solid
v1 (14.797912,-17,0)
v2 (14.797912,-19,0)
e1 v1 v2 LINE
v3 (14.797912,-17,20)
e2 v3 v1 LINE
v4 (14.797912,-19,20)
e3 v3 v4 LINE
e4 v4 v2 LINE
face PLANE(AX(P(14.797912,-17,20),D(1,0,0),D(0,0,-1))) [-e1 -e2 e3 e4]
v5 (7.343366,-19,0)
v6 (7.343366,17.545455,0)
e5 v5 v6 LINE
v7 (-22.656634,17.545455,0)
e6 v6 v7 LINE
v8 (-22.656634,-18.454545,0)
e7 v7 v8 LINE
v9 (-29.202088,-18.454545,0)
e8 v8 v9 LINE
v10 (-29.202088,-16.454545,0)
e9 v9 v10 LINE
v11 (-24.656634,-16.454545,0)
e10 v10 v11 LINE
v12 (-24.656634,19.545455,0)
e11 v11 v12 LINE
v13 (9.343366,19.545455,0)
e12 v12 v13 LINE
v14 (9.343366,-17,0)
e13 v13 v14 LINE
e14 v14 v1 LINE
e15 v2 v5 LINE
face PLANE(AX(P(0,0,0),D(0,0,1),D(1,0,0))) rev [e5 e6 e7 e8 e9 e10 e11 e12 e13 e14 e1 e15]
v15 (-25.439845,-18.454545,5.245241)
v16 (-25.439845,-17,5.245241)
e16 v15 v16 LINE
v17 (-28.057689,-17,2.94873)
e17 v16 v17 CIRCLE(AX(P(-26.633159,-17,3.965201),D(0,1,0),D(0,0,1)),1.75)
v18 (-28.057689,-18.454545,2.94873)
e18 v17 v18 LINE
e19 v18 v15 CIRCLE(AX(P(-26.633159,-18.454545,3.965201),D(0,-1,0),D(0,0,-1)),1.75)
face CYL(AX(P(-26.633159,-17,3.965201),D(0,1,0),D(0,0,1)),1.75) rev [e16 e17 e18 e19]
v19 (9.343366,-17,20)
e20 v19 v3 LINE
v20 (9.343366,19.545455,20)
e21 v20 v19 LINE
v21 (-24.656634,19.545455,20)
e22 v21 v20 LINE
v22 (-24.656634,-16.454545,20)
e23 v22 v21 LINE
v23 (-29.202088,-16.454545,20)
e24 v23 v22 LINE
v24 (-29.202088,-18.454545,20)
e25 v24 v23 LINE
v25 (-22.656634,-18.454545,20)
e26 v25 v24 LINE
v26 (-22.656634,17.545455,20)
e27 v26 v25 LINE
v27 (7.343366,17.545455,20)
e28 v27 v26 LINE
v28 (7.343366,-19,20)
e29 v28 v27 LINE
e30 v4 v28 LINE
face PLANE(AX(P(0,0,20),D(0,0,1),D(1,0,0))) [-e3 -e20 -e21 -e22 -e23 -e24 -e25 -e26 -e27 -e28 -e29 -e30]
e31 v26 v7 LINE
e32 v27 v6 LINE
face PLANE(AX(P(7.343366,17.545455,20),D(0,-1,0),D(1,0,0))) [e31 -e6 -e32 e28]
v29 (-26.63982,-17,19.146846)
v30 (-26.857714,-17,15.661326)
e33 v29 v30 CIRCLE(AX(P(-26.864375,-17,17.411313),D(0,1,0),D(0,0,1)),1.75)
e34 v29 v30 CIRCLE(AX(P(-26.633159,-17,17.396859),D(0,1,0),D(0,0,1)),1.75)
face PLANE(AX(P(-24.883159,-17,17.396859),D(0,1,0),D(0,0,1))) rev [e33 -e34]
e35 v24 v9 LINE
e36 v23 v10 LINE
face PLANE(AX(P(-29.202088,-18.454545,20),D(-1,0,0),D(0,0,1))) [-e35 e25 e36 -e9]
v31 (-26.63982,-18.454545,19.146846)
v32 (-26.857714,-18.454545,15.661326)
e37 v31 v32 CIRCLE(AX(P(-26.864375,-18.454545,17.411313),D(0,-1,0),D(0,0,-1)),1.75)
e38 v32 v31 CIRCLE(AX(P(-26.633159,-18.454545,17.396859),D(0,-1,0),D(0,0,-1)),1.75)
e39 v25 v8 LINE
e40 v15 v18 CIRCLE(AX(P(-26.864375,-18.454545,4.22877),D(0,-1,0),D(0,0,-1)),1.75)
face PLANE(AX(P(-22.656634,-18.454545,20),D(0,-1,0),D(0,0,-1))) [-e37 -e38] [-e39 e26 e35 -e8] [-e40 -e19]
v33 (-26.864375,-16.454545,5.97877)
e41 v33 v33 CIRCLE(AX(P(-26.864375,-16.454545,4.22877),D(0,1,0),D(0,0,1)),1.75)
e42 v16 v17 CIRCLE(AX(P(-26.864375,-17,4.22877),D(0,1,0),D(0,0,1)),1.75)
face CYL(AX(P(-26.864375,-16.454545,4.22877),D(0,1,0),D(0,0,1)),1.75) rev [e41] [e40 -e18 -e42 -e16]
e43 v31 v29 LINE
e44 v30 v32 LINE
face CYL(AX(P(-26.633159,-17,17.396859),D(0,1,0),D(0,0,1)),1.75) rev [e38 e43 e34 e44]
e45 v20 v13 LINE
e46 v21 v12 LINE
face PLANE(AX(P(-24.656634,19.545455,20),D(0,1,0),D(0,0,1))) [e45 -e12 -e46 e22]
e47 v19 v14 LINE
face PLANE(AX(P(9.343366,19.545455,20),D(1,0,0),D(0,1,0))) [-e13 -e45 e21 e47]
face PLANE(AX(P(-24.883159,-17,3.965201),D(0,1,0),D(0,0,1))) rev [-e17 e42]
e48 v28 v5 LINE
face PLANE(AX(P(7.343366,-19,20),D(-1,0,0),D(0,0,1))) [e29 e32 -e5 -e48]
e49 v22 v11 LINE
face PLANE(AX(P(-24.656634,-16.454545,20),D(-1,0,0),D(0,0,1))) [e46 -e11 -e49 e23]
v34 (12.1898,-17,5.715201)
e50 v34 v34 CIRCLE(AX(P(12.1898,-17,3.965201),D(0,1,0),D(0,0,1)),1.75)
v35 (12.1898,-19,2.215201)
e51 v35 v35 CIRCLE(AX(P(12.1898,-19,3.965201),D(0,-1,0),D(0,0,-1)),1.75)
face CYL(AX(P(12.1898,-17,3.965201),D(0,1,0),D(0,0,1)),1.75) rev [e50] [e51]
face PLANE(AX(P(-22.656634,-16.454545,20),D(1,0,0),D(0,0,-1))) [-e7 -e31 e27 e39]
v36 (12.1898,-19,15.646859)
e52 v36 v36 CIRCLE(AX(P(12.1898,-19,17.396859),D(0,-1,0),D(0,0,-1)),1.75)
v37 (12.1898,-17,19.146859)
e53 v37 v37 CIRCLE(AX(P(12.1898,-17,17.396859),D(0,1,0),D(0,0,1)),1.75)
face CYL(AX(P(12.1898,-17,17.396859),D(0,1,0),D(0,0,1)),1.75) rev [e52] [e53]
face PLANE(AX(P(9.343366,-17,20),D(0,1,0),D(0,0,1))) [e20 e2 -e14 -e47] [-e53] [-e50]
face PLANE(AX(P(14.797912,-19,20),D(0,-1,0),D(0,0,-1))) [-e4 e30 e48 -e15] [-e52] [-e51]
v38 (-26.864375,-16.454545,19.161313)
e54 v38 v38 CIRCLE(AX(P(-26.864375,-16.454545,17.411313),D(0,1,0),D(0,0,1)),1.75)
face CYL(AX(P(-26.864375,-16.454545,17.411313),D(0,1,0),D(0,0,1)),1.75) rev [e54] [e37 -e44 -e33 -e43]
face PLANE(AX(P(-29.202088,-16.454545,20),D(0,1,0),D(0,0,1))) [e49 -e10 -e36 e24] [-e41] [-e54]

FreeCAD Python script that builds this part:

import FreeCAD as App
import Part
import Sketcher

V = App.Vector
Q = App.Units.Quantity


def add_polygon(sketch, points):
    """Adds a closed chain of lines whose ends are joined by coincident constraints."""
    first, n = sketch.GeometryCount, len(points)
    for a, b in zip(points, points[1:] + points[:1]):
        sketch.addGeometry(Part.LineSegment(App.Vector(*a, 0), App.Vector(*b, 0)), False)
    for i in range(n):
        sketch.addConstraint(Sketcher.Constraint("Coincident", first + i, 2, first + (i + 1) % n, 1))

doc = App.newDocument("Part")
body = doc.addObject("PartDesign::Body", "Body")

# Sketch on XY plane
sketch1 = body.newObject("Sketcher::SketchObject", "Sketch")
sketch1.AttachmentSupport = (doc.getObject("XY_Plane"), [""])
sketch1.MapMode = "FlatFace"
add_polygon(sketch1, [(-29.2, -16.5), (-29.2, -18.5), (-22.7, -18.5), (-22.7, 17.5), (7.3, 17.5), (7.3, -19), (14.8, -19), (14.8, -17), (9.3, -17), (9.3, 19.5), (-24.7, 19.5), (-24.7, -16.5)])  # lines 0-11
sketch1.addConstraint(Sketcher.Constraint("Vertical", 0))
sketch1.addConstraint(Sketcher.Constraint("Horizontal", 1))
sketch1.addConstraint(Sketcher.Constraint("Vertical", 2))
sketch1.addConstraint(Sketcher.Constraint("Horizontal", 3))
sketch1.addConstraint(Sketcher.Constraint("Vertical", 4))
sketch1.addConstraint(Sketcher.Constraint("Horizontal", 5))
sketch1.addConstraint(Sketcher.Constraint("Vertical", 6))
sketch1.addConstraint(Sketcher.Constraint("Horizontal", 7))
sketch1.addConstraint(Sketcher.Constraint("Vertical", 8))
sketch1.addConstraint(Sketcher.Constraint("Horizontal", 9))
sketch1.addConstraint(Sketcher.Constraint("Vertical", 10))
sketch1.addConstraint(Sketcher.Constraint("Horizontal", 11))
sketch1.addConstraint(Sketcher.Constraint("Equal", 0, 6))
sketch1.addConstraint(Sketcher.Constraint("Equal", 4, 8))
sketch1.addConstraint(Sketcher.Constraint("DistanceX", 3, 1, 3, 2, 30.0))
sketch1.addConstraint(Sketcher.Constraint("DistanceX", 9, 2, 9, 1, 34.0))
sketch1.addConstraint(Sketcher.Constraint("DistanceY", 0, 2, 0, 1, 2.0))
sketch1.addConstraint(Sketcher.Constraint("DistanceY", 2, 1, 2, 2, 36.0))
sketch1.addConstraint(Sketcher.Constraint("DistanceY", 4, 2, -1, 1, 19.0))
sketch1.addConstraint(Sketcher.Constraint("DistanceX", 0, 2, 5, 2, 44.0))
sketch1.addConstraint(Sketcher.Constraint("DistanceX", 4, 2, 7, 2, 2.0))
sketch1.addConstraint(Sketcher.Constraint("DistanceX", 1, 1, 1, 2, 6.545455))
sketch1.addConstraint(Sketcher.Constraint("DistanceY", 4, 2, 4, 1, 36.545455))
sketch1.addConstraint(Sketcher.Constraint("DistanceX", 0, 2, -1, 1, 29.202088))
pad1 = body.newObject("PartDesign::Pad", "Pad")
pad1.Profile = sketch1
pad1.Length = 20

# Sketch on YZ plane
sketch2 = body.newObject("Sketcher::SketchObject", "Sketch001")
sketch2.AttachmentSupport = (doc.getObject("YZ_Plane"), [""])
sketch2.MapMode = "FlatFace"
sketch2.AttachmentOffset = App.Placement(V(0, 0, 12.1898), App.Rotation())
add_polygon(sketch2, [(-28.1, 4), (-17, 4), (-17, 5.7), (-27, 5.7)])  # lines 0-3
sketch2.addGeometry(Part.LineSegment(V(-17, 4, 0), V(-28.1, 4, 0)), True)  # axis
sketch2.addConstraint(Sketcher.Constraint("Horizontal", 0))
sketch2.addConstraint(Sketcher.Constraint("Vertical", 1))
sketch2.addConstraint(Sketcher.Constraint("Horizontal", 2))
sketch2.addConstraint(Sketcher.Constraint("Horizontal", 4))
sketch2.addConstraint(Sketcher.Constraint("Coincident", 4, 1, 0, 2))
sketch2.addConstraint(Sketcher.Constraint("Equal", 0, 4))
sketch2.addConstraint(Sketcher.Constraint("DistanceX", 2, 2, 2, 1, 10.0))
sketch2.addConstraint(Sketcher.Constraint("Angle", 3, Q("-121 deg")))
sketch2.addConstraint(Sketcher.Constraint("DistanceX", 0, 2, -1, 1, 17.0))
sketch2.addConstraint(Sketcher.Constraint("DistanceY", 1, 1, 1, 2, 1.75))
sketch2.addConstraint(Sketcher.Constraint("DistanceY", -1, 1, 0, 2, 3.965201))
groove = body.newObject("PartDesign::Groove", "Groove")
groove.Profile = sketch2
groove.ReferenceAxis = (sketch2, ["Axis0"])
groove.Angle = 360
doc.recompute()

linearpattern = body.newObject("PartDesign::LinearPattern", "LinearPattern")
linearpattern.Originals = [groove]
linearpattern.Direction = (doc.getObject("Z_Axis"), [""])
linearpattern.Mode = "offset"
linearpattern.Offset = 13.431658
linearpattern.Occurrences = 2
body.Tip = linearpattern
doc.recompute()

linearpattern2 = body.newObject("PartDesign::LinearPattern", "LinearPattern001")
linearpattern2.Originals = [groove]
linearpattern2.Direction = (doc.getObject("X_Axis"), [""])
linearpattern2.Mode = "offset"
linearpattern2.Offset = 38.822958
linearpattern2.Occurrences = 2
linearpattern2.Reversed = True
body.Tip = linearpattern2
doc.recompute()

datumline = body.newObject("PartDesign::Line", "DatumLine")
datumline.Placement = App.Placement(V(0, 0, 0), App.Rotation(V(0, 0, 1), V(-0.945039171, 0, 0.326957131)))
linearpattern3 = body.newObject("PartDesign::LinearPattern", "LinearPattern002")
linearpattern3.Originals = [groove]
linearpattern3.Direction = (datumline, [""])
linearpattern3.Mode = "offset"
linearpattern3.Offset = 41.080793
linearpattern3.Occurrences = 2
body.Tip = linearpattern3

# Sketch on XZ plane
sketch3 = body.newObject("Sketcher::SketchObject", "Sketch002")
sketch3.AttachmentSupport = (doc.getObject("XZ_Plane"), [""])
sketch3.MapMode = "FlatFace"
sketch3.AttachmentOffset = App.Placement(V(0, 0, 16.454545), App.Rotation())
sketch3.addGeometry(Part.Circle(V(-26.9, 17.4, 0), V(0, 0, 1), 1.8), False)
sketch3.addGeometry(Part.Circle(V(-26.9, 4.2, 0), V(0, 0, 1), 1.8), False)
sketch3.addConstraint(Sketcher.Constraint("Equal", 0, 1))
sketch3.addConstraint(Sketcher.Constraint("Vertical", 0, 3, 1, 3))
sketch3.addConstraint(Sketcher.Constraint("Diameter", 0, 3.5))
sketch3.addConstraint(Sketcher.Constraint("DistanceY", -1, 1, 1, 3, 4.22877))
sketch3.addConstraint(Sketcher.Constraint("DistanceX", 0, 3, -1, 1, 26.864375))
sketch3.addConstraint(Sketcher.Constraint("DistanceY", -1, 1, 0, 3, 17.411313))
doc.recompute()
hole = body.newObject("PartDesign::Hole", "Hole")
hole.Profile = sketch3
hole.ThreadType = "None"
hole.Diameter = 3.5
hole.DepthType = "Dimension"
hole.Depth = 10
hole.DrillPoint = "Angled"
hole.DrillPointAngle = 118
hole.Reversed = True

doc.recompute()
